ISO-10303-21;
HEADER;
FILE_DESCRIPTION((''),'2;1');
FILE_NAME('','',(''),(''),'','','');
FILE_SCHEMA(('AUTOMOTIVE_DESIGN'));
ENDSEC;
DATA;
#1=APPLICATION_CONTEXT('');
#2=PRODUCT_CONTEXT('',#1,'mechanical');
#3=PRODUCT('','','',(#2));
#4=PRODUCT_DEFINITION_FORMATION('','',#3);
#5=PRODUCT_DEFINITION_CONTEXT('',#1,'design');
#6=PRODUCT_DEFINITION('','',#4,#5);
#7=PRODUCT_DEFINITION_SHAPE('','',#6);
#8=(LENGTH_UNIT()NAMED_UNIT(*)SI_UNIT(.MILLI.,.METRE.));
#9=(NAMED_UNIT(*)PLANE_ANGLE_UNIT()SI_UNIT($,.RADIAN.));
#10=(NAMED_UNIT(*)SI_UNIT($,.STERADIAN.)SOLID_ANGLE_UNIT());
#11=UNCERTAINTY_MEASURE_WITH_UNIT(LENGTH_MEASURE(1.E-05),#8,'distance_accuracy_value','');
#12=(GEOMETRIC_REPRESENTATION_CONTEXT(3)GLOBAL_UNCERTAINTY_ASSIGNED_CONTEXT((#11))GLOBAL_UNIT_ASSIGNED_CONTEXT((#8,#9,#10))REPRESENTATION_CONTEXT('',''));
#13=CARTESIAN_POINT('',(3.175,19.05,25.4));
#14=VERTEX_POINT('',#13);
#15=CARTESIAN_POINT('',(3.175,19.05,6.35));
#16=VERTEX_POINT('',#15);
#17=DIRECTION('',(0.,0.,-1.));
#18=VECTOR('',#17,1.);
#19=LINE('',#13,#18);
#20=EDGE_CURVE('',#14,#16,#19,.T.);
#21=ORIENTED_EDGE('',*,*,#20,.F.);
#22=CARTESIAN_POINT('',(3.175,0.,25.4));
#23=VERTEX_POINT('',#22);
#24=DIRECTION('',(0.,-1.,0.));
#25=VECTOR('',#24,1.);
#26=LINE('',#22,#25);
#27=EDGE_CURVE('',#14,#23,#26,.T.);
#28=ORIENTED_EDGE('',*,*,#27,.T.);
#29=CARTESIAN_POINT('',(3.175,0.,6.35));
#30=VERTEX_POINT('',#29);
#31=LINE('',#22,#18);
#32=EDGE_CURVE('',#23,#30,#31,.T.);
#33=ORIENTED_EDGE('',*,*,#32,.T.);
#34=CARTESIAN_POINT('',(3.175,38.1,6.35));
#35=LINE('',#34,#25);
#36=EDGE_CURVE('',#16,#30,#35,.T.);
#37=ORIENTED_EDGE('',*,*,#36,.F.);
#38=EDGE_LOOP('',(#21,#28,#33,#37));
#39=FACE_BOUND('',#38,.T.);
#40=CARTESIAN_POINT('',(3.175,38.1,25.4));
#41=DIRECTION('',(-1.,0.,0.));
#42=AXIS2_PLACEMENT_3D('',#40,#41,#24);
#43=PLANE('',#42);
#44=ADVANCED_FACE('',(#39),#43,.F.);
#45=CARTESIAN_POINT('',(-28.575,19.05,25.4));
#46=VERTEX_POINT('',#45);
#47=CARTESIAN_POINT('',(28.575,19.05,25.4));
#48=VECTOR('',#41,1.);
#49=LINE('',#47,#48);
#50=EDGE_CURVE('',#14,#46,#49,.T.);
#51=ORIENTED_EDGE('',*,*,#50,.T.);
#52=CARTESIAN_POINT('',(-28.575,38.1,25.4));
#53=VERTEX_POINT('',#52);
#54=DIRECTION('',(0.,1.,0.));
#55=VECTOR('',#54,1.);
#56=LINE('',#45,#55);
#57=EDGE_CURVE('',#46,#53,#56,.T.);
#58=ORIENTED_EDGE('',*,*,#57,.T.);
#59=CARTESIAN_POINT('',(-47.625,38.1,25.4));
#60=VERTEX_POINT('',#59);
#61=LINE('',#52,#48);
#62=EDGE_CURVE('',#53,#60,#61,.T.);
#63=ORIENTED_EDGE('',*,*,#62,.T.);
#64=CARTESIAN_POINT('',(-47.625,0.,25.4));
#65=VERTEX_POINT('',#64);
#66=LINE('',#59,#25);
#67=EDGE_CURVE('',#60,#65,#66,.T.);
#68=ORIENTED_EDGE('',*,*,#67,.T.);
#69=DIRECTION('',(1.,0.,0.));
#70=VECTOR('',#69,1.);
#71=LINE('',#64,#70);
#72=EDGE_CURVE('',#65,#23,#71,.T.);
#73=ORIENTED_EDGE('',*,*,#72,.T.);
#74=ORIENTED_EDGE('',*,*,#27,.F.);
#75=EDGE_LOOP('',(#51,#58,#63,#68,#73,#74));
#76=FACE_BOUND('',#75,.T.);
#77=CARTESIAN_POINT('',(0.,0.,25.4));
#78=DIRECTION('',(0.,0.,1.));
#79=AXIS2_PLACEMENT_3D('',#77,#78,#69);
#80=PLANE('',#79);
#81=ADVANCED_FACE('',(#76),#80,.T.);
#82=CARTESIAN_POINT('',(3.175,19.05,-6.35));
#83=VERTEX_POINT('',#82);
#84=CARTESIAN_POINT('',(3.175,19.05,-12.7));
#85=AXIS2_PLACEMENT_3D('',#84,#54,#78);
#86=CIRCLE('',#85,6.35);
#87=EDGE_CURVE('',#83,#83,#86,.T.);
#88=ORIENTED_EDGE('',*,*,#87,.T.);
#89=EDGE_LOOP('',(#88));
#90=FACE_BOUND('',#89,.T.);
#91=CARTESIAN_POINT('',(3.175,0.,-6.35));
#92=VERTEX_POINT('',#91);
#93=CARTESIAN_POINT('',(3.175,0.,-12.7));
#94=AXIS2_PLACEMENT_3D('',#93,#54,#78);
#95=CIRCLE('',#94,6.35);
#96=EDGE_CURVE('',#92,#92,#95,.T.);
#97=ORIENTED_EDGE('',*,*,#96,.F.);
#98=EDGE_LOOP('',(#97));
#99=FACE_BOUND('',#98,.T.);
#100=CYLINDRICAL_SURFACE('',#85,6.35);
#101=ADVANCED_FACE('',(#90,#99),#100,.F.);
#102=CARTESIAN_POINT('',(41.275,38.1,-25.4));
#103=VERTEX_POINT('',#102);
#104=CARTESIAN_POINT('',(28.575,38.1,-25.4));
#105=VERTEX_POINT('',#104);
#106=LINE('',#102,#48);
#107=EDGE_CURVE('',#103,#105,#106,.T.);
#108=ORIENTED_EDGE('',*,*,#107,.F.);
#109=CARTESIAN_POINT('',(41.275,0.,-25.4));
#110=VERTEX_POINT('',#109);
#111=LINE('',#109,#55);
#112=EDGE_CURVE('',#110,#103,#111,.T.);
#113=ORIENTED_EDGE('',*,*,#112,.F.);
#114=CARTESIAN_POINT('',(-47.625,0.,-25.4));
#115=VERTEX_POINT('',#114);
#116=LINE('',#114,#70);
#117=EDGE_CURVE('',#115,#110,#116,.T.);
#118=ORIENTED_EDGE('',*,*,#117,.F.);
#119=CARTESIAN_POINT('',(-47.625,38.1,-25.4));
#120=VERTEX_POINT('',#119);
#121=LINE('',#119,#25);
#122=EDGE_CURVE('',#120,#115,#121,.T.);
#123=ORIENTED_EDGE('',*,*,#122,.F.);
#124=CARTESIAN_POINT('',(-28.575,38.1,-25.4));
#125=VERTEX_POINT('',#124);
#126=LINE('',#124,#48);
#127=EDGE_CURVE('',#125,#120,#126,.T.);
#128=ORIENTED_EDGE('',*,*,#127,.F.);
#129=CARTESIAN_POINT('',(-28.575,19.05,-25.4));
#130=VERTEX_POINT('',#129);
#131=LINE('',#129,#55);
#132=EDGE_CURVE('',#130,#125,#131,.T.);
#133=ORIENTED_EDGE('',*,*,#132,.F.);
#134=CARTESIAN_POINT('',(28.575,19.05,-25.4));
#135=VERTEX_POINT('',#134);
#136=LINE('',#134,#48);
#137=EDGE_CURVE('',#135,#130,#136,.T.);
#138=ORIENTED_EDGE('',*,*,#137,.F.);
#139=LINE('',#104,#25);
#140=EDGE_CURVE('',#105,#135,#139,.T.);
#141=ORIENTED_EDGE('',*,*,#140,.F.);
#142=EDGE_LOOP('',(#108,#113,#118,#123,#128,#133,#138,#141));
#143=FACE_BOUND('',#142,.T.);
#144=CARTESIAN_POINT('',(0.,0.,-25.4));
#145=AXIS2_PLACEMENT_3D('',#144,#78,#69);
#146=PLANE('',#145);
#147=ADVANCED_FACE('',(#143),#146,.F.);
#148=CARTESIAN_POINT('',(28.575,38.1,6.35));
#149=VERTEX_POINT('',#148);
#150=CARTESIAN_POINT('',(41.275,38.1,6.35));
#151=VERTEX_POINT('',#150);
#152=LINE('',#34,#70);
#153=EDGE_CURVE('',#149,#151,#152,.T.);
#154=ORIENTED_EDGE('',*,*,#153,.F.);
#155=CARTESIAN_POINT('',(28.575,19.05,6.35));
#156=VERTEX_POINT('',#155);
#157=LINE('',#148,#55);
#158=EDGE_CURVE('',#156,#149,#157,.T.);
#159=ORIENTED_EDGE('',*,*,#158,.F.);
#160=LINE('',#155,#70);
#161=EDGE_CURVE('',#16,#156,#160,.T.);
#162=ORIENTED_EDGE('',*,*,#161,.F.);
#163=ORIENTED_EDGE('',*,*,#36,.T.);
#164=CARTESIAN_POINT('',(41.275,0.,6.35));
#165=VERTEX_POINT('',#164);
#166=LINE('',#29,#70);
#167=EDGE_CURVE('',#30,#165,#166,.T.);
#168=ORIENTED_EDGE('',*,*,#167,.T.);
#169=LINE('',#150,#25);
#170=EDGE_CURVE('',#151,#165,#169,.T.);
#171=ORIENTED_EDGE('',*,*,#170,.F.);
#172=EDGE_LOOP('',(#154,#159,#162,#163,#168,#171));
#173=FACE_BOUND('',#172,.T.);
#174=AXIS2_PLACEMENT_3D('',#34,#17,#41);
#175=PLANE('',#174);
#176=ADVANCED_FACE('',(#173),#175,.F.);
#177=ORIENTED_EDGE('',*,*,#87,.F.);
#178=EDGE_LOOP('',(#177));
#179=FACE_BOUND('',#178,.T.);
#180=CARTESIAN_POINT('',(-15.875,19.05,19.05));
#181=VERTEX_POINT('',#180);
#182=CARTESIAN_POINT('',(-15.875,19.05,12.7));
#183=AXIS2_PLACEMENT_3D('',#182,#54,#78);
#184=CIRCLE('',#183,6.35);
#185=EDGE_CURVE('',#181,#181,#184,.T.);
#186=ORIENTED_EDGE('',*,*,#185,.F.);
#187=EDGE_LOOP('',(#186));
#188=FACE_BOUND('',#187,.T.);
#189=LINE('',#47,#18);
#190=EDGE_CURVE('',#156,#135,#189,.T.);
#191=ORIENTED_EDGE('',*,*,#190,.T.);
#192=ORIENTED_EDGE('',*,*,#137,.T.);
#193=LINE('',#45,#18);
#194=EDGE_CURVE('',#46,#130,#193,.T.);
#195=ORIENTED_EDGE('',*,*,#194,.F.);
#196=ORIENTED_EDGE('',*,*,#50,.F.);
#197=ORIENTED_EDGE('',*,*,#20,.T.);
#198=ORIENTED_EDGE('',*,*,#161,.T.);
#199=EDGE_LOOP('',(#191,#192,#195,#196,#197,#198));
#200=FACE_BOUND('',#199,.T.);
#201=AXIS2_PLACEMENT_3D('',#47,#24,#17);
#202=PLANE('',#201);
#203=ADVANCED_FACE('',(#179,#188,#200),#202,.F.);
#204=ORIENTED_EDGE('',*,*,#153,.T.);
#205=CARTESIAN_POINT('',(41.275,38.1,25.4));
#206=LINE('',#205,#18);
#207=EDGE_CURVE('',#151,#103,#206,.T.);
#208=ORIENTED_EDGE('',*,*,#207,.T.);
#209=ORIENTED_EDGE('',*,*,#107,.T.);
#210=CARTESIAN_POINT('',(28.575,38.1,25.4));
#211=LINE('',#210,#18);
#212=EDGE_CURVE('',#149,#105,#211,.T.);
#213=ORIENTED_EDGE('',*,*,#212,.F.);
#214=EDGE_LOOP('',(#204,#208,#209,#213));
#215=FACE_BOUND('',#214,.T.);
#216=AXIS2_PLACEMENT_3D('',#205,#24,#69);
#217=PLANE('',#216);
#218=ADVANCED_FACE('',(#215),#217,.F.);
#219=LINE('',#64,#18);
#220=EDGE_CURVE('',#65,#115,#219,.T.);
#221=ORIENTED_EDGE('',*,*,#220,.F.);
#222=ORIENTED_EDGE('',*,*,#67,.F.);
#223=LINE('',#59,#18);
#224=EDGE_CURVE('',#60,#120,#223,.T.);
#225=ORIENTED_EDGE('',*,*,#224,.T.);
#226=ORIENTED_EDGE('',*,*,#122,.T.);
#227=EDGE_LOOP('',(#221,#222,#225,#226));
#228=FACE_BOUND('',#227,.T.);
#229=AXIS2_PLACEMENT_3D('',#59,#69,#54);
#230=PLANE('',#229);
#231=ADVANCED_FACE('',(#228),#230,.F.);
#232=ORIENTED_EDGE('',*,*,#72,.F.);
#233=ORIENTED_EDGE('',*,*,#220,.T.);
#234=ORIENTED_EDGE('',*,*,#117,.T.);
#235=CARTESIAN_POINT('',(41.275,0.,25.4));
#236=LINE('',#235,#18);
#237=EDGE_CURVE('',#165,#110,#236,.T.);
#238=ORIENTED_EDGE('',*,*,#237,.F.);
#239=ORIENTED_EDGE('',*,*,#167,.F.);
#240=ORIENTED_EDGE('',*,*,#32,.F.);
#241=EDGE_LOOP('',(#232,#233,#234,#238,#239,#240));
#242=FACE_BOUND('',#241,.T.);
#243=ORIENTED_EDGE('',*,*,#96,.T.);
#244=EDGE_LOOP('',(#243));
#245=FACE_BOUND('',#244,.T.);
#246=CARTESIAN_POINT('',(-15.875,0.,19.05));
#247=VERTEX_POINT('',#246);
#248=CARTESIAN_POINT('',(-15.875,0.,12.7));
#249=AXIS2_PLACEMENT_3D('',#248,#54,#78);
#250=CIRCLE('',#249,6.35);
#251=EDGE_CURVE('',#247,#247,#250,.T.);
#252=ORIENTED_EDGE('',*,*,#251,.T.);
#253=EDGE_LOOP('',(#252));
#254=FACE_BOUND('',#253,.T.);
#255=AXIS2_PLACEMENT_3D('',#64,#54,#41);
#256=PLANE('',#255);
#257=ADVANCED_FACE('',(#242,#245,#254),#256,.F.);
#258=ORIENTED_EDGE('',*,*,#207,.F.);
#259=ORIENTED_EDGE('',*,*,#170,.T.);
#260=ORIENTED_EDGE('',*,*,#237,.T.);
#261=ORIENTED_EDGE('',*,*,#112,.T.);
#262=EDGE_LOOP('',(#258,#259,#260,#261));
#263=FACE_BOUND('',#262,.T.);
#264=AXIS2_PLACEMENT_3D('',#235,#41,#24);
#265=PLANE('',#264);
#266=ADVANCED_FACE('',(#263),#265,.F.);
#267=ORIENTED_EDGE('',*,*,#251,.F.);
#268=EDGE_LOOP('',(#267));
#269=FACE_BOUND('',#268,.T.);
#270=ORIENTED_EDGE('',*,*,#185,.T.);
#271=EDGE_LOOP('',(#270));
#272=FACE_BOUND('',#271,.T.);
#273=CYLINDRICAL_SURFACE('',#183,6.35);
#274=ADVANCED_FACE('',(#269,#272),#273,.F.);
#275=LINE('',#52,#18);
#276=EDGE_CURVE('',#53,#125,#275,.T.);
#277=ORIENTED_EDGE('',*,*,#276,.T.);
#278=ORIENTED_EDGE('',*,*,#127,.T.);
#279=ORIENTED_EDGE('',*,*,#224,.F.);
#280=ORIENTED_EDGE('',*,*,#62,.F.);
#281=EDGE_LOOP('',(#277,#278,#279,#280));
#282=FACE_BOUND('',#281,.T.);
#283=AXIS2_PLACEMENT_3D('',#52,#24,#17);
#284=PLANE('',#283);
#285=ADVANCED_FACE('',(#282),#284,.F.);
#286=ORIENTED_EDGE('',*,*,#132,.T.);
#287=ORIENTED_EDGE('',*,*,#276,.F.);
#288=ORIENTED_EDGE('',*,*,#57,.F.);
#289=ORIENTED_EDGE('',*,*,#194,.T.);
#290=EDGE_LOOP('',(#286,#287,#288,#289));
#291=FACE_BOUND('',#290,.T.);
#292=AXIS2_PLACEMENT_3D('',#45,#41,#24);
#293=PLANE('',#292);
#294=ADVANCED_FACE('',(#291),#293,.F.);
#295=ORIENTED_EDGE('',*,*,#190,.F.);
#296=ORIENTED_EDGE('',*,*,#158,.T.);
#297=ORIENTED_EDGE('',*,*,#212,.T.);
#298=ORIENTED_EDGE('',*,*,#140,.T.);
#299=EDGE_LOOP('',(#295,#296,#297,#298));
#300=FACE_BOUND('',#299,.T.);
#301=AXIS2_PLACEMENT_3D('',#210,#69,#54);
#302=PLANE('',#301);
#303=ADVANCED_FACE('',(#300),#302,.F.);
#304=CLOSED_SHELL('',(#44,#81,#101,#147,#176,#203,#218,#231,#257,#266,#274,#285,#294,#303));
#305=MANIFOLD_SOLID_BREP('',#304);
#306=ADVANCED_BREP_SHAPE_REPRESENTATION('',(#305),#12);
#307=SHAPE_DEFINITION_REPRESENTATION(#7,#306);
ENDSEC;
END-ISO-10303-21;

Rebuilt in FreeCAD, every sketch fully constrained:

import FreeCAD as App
import Part
import Sketcher

V = App.Vector
Q = App.Units.Quantity


def add_polygon(sketch, points):
    """Adds a closed chain of lines whose ends are joined by coincident constraints."""
    first, n = sketch.GeometryCount, len(points)
    for a, b in zip(points, points[1:] + points[:1]):
        sketch.addGeometry(Part.LineSegment(App.Vector(*a, 0), App.Vector(*b, 0)), False)
    for i in range(n):
        sketch.addConstraint(Sketcher.Constraint("Coincident", first + i, 2, first + (i + 1) % n, 1))

doc = App.newDocument("Part")
body = doc.addObject("PartDesign::Body", "Body")

sketch1 = body.newObject("Sketcher::SketchObject", "Sketch")
sketch1.AttachmentSupport = (doc.getObject("XY_Plane"), [""])
sketch1.MapMode = "FlatFace"
add_polygon(sketch1, [(-48, 0), (41, 0), (41, 38), (29, 38), (29, 19), (-29, 19), (-29, 38), (-48, 38)])
sketch1.addConstraint(Sketcher.Constraint("Horizontal", 0))
sketch1.addConstraint(Sketcher.Constraint("Vertical", 1))
sketch1.addConstraint(Sketcher.Constraint("Horizontal", 2))
sketch1.addConstraint(Sketcher.Constraint("Vertical", 3))
sketch1.addConstraint(Sketcher.Constraint("Horizontal", 4))
sketch1.addConstraint(Sketcher.Constraint("Vertical", 5))
sketch1.addConstraint(Sketcher.Constraint("Horizontal", 6))
sketch1.addConstraint(Sketcher.Constraint("Vertical", 7))
sketch1.addConstraint(Sketcher.Constraint("Symmetric", 2, 2, 5, 2, -2))
sketch1.addConstraint(Sketcher.Constraint("PointOnObject", 0, 2, -1))
sketch1.addConstraint(Sketcher.Constraint("Equal", 6, 3))
sketch1.addConstraint(Sketcher.Constraint("DistanceX", 0, 1, 0, 2, Q("3.5 in")))
sketch1.addConstraint(Sketcher.Constraint("DistanceX", 2, 2, 2, 1, Q("0.5 in")))
sketch1.addConstraint(Sketcher.Constraint("DistanceY", 1, 1, 1, 2, Q("1.5 in")))
sketch1.addConstraint(Sketcher.Constraint("DistanceX", 4, 2, 4, 1, Q("2.25 in")))
pad1 = body.newObject("PartDesign::Pad", "Pad")
pad1.Profile = sketch1
pad1.Length = Q("2 in")
pad1.Midplane = True

sketch2 = body.newObject("Sketcher::SketchObject", "Sketch001")
sketch2.AttachmentSupport = (doc.getObject("XZ_Plane"), [""])
sketch2.MapMode = "FlatFace"
add_polygon(sketch2, [(3, 25), (3, 6), (41, 6), (41, 25)])
sketch2.addConstraint(Sketcher.Constraint("Vertical", 0))
sketch2.addConstraint(Sketcher.Constraint("Horizontal", 1))
sketch2.addConstraint(Sketcher.Constraint("Vertical", 2))
sketch2.addConstraint(Sketcher.Constraint("Horizontal", 3))
sketch2.addConstraint(Sketcher.Constraint("DistanceX", 1, 1, 1, 2, Q("1.5 in")))
sketch2.addConstraint(Sketcher.Constraint("DistanceY", -1, 1, 2, 2, Q("1 in")))
sketch2.addConstraint(Sketcher.Constraint("DistanceY", 0, 2, 0, 1, Q("0.75 in")))
sketch2.addConstraint(Sketcher.Constraint("DistanceX", -1, 1, 0, 2, Q("0.125 in")))
pocket1 = body.newObject("PartDesign::Pocket", "Pocket")
pocket1.Profile = sketch2
pocket1.Type = "ThroughAll"

sketch3 = body.newObject("Sketcher::SketchObject", "Sketch002")
sketch3.AttachmentSupport = (doc.getObject("XZ_Plane"), [""])
sketch3.MapMode = "FlatFace"
sketch3.AttachmentOffset = App.Placement(V(0, 0, -0.75 * 25.4), App.Rotation())
sketch3.addGeometry(Part.Circle(V(-16, 13, 0), V(0, 0, 1), 6), False)
sketch3.addGeometry(Part.Circle(V(3, -13, 0), V(0, 0, 1), 6), False)
sketch3.addConstraint(Sketcher.Constraint("Equal", 0, 1))
sketch3.addConstraint(Sketcher.Constraint("Diameter", 0, Q("0.5 in")))
sketch3.addConstraint(Sketcher.Constraint("DistanceY", 1, 3, 0, 3, Q("1 in")))
sketch3.addConstraint(Sketcher.Constraint("DistanceY", -1, 1, 0, 3, Q("0.5 in")))
sketch3.addConstraint(Sketcher.Constraint("DistanceX", 0, 3, 1, 3, Q("0.75 in")))
sketch3.addConstraint(Sketcher.Constraint("DistanceX", 0, 3, -1, 1, Q("0.625 in")))
doc.recompute()
hole = body.newObject("PartDesign::Hole", "Hole")
hole.Profile = sketch3
hole.ThreadType = "None"
hole.Diameter = Q("0.5 in")
hole.DepthType = "ThroughAll"
hole.Reversed = True

doc.recompute()
